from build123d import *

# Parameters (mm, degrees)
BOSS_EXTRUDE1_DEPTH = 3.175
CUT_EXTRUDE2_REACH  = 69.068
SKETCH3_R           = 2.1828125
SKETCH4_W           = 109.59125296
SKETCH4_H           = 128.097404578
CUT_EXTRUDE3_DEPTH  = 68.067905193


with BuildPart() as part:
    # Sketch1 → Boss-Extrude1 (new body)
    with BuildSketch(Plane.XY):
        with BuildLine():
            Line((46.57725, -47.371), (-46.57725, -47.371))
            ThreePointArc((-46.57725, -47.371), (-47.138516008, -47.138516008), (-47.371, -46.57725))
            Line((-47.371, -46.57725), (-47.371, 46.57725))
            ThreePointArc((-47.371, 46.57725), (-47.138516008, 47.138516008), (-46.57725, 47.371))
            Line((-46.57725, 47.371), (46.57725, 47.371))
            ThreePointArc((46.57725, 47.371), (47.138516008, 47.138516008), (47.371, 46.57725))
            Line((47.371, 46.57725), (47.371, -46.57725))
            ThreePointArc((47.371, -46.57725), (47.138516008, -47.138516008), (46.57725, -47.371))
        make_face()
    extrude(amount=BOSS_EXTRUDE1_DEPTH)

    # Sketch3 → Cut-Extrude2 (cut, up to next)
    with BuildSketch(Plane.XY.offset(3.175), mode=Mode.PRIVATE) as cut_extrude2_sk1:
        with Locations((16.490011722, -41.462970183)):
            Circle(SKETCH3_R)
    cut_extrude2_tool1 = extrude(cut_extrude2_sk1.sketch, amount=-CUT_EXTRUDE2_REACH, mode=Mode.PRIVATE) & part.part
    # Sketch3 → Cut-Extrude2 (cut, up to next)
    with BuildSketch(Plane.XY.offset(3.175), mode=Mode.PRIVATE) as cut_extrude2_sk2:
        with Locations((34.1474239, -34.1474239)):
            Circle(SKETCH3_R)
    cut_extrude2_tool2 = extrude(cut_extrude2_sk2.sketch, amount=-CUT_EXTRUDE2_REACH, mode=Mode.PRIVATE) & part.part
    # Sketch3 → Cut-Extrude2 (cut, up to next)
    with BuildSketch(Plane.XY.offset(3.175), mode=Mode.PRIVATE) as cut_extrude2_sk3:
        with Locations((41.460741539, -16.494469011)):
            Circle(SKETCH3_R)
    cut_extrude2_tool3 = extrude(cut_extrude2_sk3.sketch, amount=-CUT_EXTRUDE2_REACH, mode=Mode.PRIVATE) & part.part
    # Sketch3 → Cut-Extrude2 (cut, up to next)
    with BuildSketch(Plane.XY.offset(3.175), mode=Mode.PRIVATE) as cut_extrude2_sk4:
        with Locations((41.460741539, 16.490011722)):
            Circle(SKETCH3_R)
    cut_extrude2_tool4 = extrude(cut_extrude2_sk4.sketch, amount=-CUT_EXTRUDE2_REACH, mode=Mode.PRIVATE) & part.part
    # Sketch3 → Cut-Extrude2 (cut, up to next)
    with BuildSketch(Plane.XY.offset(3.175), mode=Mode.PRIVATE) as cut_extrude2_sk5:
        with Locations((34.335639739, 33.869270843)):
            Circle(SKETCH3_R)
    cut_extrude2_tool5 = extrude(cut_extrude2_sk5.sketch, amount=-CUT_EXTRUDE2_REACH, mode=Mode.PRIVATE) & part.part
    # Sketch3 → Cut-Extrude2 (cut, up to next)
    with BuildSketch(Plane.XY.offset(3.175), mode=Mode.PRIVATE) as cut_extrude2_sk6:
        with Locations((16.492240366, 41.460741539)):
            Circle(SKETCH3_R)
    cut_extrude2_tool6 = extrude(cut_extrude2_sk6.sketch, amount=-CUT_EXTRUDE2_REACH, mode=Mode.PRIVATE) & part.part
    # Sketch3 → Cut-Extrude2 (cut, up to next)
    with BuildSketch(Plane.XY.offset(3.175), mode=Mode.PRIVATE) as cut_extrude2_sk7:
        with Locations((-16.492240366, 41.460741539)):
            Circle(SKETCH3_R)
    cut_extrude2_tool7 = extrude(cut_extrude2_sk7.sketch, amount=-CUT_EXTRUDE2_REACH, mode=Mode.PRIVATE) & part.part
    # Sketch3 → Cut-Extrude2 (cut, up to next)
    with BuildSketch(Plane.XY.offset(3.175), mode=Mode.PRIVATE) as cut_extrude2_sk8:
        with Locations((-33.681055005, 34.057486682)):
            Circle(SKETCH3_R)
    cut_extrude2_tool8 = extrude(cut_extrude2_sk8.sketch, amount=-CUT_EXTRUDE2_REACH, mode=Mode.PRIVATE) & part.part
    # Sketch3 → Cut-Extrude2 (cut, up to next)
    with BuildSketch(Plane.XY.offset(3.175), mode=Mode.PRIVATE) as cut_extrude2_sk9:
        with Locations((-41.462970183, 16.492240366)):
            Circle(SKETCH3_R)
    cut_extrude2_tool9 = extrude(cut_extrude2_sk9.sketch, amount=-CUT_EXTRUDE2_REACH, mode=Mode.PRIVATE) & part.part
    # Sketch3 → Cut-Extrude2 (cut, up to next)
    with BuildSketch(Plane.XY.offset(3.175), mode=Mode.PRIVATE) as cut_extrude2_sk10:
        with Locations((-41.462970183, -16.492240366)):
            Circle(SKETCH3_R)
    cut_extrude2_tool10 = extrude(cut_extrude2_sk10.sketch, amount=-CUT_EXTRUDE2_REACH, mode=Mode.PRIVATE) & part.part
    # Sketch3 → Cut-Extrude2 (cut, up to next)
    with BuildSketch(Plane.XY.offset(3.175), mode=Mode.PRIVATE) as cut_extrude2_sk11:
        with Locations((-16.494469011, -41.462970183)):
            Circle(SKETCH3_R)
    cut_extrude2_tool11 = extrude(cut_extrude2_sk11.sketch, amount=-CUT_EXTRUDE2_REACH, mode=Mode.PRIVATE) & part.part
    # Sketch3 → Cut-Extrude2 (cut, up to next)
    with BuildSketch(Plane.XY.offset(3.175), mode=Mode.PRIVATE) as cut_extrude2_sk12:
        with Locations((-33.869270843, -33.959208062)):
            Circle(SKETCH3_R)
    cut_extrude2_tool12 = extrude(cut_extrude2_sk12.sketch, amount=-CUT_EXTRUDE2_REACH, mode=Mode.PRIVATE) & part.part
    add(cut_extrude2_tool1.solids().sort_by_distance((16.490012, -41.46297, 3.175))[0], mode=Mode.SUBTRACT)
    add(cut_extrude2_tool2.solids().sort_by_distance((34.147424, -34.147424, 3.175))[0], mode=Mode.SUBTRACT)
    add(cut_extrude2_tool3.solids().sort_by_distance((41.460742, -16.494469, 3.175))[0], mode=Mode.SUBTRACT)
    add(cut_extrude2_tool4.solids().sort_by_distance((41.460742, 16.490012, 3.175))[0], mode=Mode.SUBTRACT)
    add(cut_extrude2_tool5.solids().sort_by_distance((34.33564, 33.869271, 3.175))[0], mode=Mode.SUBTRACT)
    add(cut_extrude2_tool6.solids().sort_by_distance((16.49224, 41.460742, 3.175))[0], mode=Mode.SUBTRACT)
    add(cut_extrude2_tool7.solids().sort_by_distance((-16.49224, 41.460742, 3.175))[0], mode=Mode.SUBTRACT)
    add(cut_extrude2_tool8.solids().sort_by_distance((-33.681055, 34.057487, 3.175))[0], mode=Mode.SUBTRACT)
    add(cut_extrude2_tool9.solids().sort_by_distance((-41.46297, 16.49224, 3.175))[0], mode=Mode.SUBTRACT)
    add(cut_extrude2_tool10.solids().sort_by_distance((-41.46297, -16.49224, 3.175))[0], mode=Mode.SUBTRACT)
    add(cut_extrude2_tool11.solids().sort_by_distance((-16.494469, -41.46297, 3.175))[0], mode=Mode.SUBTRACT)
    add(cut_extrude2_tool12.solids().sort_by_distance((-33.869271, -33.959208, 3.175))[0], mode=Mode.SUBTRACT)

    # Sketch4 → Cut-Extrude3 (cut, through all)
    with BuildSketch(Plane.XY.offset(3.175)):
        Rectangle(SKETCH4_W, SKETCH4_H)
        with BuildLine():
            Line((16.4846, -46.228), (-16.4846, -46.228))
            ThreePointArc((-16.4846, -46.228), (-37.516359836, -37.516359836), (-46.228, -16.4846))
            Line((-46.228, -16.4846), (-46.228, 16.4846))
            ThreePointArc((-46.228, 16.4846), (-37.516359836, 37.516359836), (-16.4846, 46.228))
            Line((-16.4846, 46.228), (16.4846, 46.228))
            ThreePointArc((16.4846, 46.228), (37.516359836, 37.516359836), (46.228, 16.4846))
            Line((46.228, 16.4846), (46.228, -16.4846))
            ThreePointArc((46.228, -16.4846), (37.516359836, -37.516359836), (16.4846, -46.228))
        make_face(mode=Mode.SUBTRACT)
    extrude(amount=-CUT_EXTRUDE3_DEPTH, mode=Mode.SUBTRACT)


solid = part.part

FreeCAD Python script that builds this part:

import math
import FreeCAD as App
import Part
import Sketcher

V = App.Vector
Q = App.Units.Quantity

doc = App.newDocument("Part")
params = doc.addObject("Spreadsheet::Sheet", "Params")
for row, (alias, value) in enumerate([
    ("sketch1_radius", "0.03125 in"),
    ("pad1_length", "0.125 in"),
    ("sketch2_diameter", "0.171875 in"),
    ("sketch3_diameter", "0.171875 in"),
    ("sketch4_diameter", "0.171875 in"),
    ("sketch5_diameter", "0.171875 in"),
    ("sketch6_diameter", "0.171875 in"),
    ("sketch7_diameter", "0.171875 in"),
    ("sketch8_diameter", "0.171875 in"),
    ("sketch9_diameter", "0.171875 in"),
    ("sketch10_diameter", "0.171875 in"),
    ("sketch11_diameter", "0.171875 in"),
    ("sketch12_diameter", "0.171875 in"),
    ("sketch13_diameter", "0.171875 in"),
    ("sketch14_radius", "1.171 in"),
    ("sketch14_width", "1.298 in"),
], start=1):
    params.set(f"A{row}", alias)
    params.set(f"B{row}", "=" + value)
    params.setAlias(f"B{row}", alias)

body = doc.addObject("PartDesign::Body", "Body")

sketch1 = body.newObject("Sketcher::SketchObject", "Sketch")
sketch1.AttachmentSupport = (doc.getObject("XY_Plane"), [""])
sketch1.MapMode = "FlatFace"
sketch1.addGeometry(Part.LineSegment(V(-46.6, -47.4, 0), V(46.6, -47.4, 0)), False)
sketch1.addGeometry(Part.ArcOfCircle(Part.Circle(V(46.6, -46.6, 0), V(0, 0, 1), 0.8), math.radians(-90), math.radians(0)), False)
sketch1.addGeometry(Part.LineSegment(V(47.4, -46.6, 0), V(47.4, 46.6, 0)), False)
sketch1.addGeometry(Part.ArcOfCircle(Part.Circle(V(46.6, 46.6, 0), V(0, 0, 1), 0.8), math.radians(0), math.radians(90)), False)
sketch1.addGeometry(Part.LineSegment(V(46.6, 47.4, 0), V(-46.6, 47.4, 0)), False)
sketch1.addGeometry(Part.ArcOfCircle(Part.Circle(V(-46.6, 46.6, 0), V(0, 0, 1), 0.8), math.radians(90), math.radians(180)), False)
sketch1.addGeometry(Part.LineSegment(V(-47.4, 46.6, 0), V(-47.4, -46.6, 0)), False)
sketch1.addGeometry(Part.ArcOfCircle(Part.Circle(V(-46.6, -46.6, 0), V(0, 0, 1), 0.8), math.radians(180), math.radians(270)), False)
sketch1.addConstraint(Sketcher.Constraint("Tangent", 0, 2, 1, 1))
sketch1.addConstraint(Sketcher.Constraint("Tangent", 1, 2, 2, 1))
sketch1.addConstraint(Sketcher.Constraint("Tangent", 2, 2, 3, 1))
sketch1.addConstraint(Sketcher.Constraint("Tangent", 3, 2, 4, 1))
sketch1.addConstraint(Sketcher.Constraint("Tangent", 4, 2, 5, 1))
sketch1.addConstraint(Sketcher.Constraint("Tangent", 5, 2, 6, 1))
sketch1.addConstraint(Sketcher.Constraint("Tangent", 6, 2, 7, 1))
sketch1.addConstraint(Sketcher.Constraint("Tangent", 7, 2, 0, 1))
sketch1.addConstraint(Sketcher.Constraint("Horizontal", 0))
sketch1.addConstraint(Sketcher.Constraint("Vertical", 2))
sketch1.addConstraint(Sketcher.Constraint("Horizontal", 4))
sketch1.addConstraint(Sketcher.Constraint("Vertical", 6))
sketch1.addConstraint(Sketcher.Constraint("Equal", 1, 3))
sketch1.addConstraint(Sketcher.Constraint("Equal", 3, 5))
sketch1.addConstraint(Sketcher.Constraint("Equal", 5, 7))
sketch1.addConstraint(Sketcher.Constraint("Symmetric", 1, 3, 5, 3, -1, 1))
sketch1.addConstraint(Sketcher.Constraint("Equal", 4, 2))
sketch1.addConstraint(Sketcher.Constraint("Radius", 1, Q("0.03125 in")))
sketch1.addConstraint(Sketcher.Constraint("DistanceX", 0, 1, 0, 2, Q("3.6675 in")))
sketch1.setExpression("Constraints[17]", "Params.sketch1_radius")
pad1 = body.newObject("PartDesign::Pad", "Pad")
pad1.Profile = sketch1
pad1.setExpression("Length", "Params.pad1_length")

sketch2 = body.newObject("Sketcher::SketchObject", "Sketch001")
sketch2.AttachmentSupport = (doc.getObject("XY_Plane"), [""])
sketch2.MapMode = "FlatFace"
sketch2.AttachmentOffset = App.Placement(V(0, 0, 0.125 * 25.4), App.Rotation())
sketch2.addGeometry(Part.Circle(V(16.5, -41.5, 0), V(0, 0, 1), 2.2), False)
sketch2.addConstraint(Sketcher.Constraint("Diameter", 0, Q("0.171875 in")))
sketch2.addConstraint(Sketcher.Constraint("DistanceX", -1, 1, 0, 3, Q("16.490012 mm")))
sketch2.addConstraint(Sketcher.Constraint("DistanceY", 0, 3, -1, 1, Q("41.46297 mm")))
sketch2.setExpression("Constraints[0]", "Params.sketch2_diameter")
pocket1 = body.newObject("PartDesign::Pocket", "Pocket")
pocket1.Profile = sketch2
pocket1.Type = "UpToFirst"

sketch3 = body.newObject("Sketcher::SketchObject", "Sketch002")
sketch3.AttachmentSupport = (doc.getObject("XY_Plane"), [""])
sketch3.MapMode = "FlatFace"
sketch3.AttachmentOffset = App.Placement(V(0, 0, 0.125 * 25.4), App.Rotation())
sketch3.addGeometry(Part.Circle(V(34.1, -34.1, 0), V(0, 0, 1), 2.2), False)
sketch3.addConstraint(Sketcher.Constraint("Diameter", 0, Q("0.171875 in")))
sketch3.addConstraint(Sketcher.Constraint("DistanceX", -1, 1, 0, 3, Q("34.147424 mm")))
sketch3.addConstraint(Sketcher.Constraint("DistanceY", 0, 3, -1, 1, Q("34.147424 mm")))
sketch3.setExpression("Constraints[0]", "Params.sketch3_diameter")
pocket2 = body.newObject("PartDesign::Pocket", "Pocket001")
pocket2.Profile = sketch3
pocket2.Type = "UpToFirst"

sketch4 = body.newObject("Sketcher::SketchObject", "Sketch003")
sketch4.AttachmentSupport = (doc.getObject("XY_Plane"), [""])
sketch4.MapMode = "FlatFace"
sketch4.AttachmentOffset = App.Placement(V(0, 0, 0.125 * 25.4), App.Rotation())
sketch4.addGeometry(Part.Circle(V(41.5, -16.5, 0), V(0, 0, 1), 2.2), False)
sketch4.addConstraint(Sketcher.Constraint("Diameter", 0, Q("0.171875 in")))
sketch4.addConstraint(Sketcher.Constraint("DistanceX", -1, 1, 0, 3, Q("41.460742 mm")))
sketch4.addConstraint(Sketcher.Constraint("DistanceY", 0, 3, -1, 1, Q("16.494469 mm")))
sketch4.setExpression("Constraints[0]", "Params.sketch4_diameter")
pocket3 = body.newObject("PartDesign::Pocket", "Pocket002")
pocket3.Profile = sketch4
pocket3.Type = "UpToFirst"

sketch5 = body.newObject("Sketcher::SketchObject", "Sketch004")
sketch5.AttachmentSupport = (doc.getObject("XY_Plane"), [""])
sketch5.MapMode = "FlatFace"
sketch5.AttachmentOffset = App.Placement(V(0, 0, 0.125 * 25.4), App.Rotation())
sketch5.addGeometry(Part.Circle(V(41.5, 16.5, 0), V(0, 0, 1), 2.2), False)
sketch5.addConstraint(Sketcher.Constraint("Diameter", 0, Q("0.171875 in")))
sketch5.addConstraint(Sketcher.Constraint("DistanceX", -1, 1, 0, 3, Q("41.460742 mm")))
sketch5.addConstraint(Sketcher.Constraint("DistanceY", -1, 1, 0, 3, Q("16.490012 mm")))
sketch5.setExpression("Constraints[0]", "Params.sketch5_diameter")
pocket4 = body.newObject("PartDesign::Pocket", "Pocket003")
pocket4.Profile = sketch5
pocket4.Type = "UpToFirst"

sketch6 = body.newObject("Sketcher::SketchObject", "Sketch005")
sketch6.AttachmentSupport = (doc.getObject("XY_Plane"), [""])
sketch6.MapMode = "FlatFace"
sketch6.AttachmentOffset = App.Placement(V(0, 0, 0.125 * 25.4), App.Rotation())
sketch6.addGeometry(Part.Circle(V(34.3, 33.9, 0), V(0, 0, 1), 2.2), False)
sketch6.addConstraint(Sketcher.Constraint("Diameter", 0, Q("0.171875 in")))
sketch6.addConstraint(Sketcher.Constraint("DistanceX", -1, 1, 0, 3, Q("34.33564 mm")))
sketch6.addConstraint(Sketcher.Constraint("DistanceY", -1, 1, 0, 3, Q("33.869271 mm")))
sketch6.setExpression("Constraints[0]", "Params.sketch6_diameter")
pocket5 = body.newObject("PartDesign::Pocket", "Pocket004")
pocket5.Profile = sketch6
pocket5.Type = "UpToFirst"

sketch7 = body.newObject("Sketcher::SketchObject", "Sketch006")
sketch7.AttachmentSupport = (doc.getObject("XY_Plane"), [""])
sketch7.MapMode = "FlatFace"
sketch7.AttachmentOffset = App.Placement(V(0, 0, 0.125 * 25.4), App.Rotation())
sketch7.addGeometry(Part.Circle(V(16.5, 41.5, 0), V(0, 0, 1), 2.2), False)
sketch7.addConstraint(Sketcher.Constraint("Diameter", 0, Q("0.171875 in")))
sketch7.addConstraint(Sketcher.Constraint("DistanceX", -1, 1, 0, 3, Q("16.49224 mm")))
sketch7.addConstraint(Sketcher.Constraint("DistanceY", -1, 1, 0, 3, Q("41.460742 mm")))
sketch7.setExpression("Constraints[0]", "Params.sketch7_diameter")
pocket6 = body.newObject("PartDesign::Pocket", "Pocket005")
pocket6.Profile = sketch7
pocket6.Type = "UpToFirst"

sketch8 = body.newObject("Sketcher::SketchObject", "Sketch007")
sketch8.AttachmentSupport = (doc.getObject("XY_Plane"), [""])
sketch8.MapMode = "FlatFace"
sketch8.AttachmentOffset = App.Placement(V(0, 0, 0.125 * 25.4), App.Rotation())
sketch8.addGeometry(Part.Circle(V(-16.5, 41.5, 0), V(0, 0, 1), 2.2), False)
sketch8.addConstraint(Sketcher.Constraint("Diameter", 0, Q("0.171875 in")))
sketch8.addConstraint(Sketcher.Constraint("DistanceX", 0, 3, -1, 1, Q("16.49224 mm")))
sketch8.addConstraint(Sketcher.Constraint("DistanceY", -1, 1, 0, 3, Q("41.460742 mm")))
sketch8.setExpression("Constraints[0]", "Params.sketch8_diameter")
pocket7 = body.newObject("PartDesign::Pocket", "Pocket006")
pocket7.Profile = sketch8
pocket7.Type = "UpToFirst"

sketch9 = body.newObject("Sketcher::SketchObject", "Sketch008")
sketch9.AttachmentSupport = (doc.getObject("XY_Plane"), [""])
sketch9.MapMode = "FlatFace"
sketch9.AttachmentOffset = App.Placement(V(0, 0, 0.125 * 25.4), App.Rotation())
sketch9.addGeometry(Part.Circle(V(-33.7, 34.1, 0), V(0, 0, 1), 2.2), False)
sketch9.addConstraint(Sketcher.Constraint("Diameter", 0, Q("0.171875 in")))
sketch9.addConstraint(Sketcher.Constraint("DistanceX", 0, 3, -1, 1, Q("33.681055 mm")))
sketch9.addConstraint(Sketcher.Constraint("DistanceY", -1, 1, 0, 3, Q("34.057487 mm")))
sketch9.setExpression("Constraints[0]", "Params.sketch9_diameter")
pocket8 = body.newObject("PartDesign::Pocket", "Pocket007")
pocket8.Profile = sketch9
pocket8.Type = "UpToFirst"

sketch10 = body.newObject("Sketcher::SketchObject", "Sketch009")
sketch10.AttachmentSupport = (doc.getObject("XY_Plane"), [""])
sketch10.MapMode = "FlatFace"
sketch10.AttachmentOffset = App.Placement(V(0, 0, 0.125 * 25.4), App.Rotation())
sketch10.addGeometry(Part.Circle(V(-41.5, 16.5, 0), V(0, 0, 1), 2.2), False)
sketch10.addConstraint(Sketcher.Constraint("Diameter", 0, Q("0.171875 in")))
sketch10.addConstraint(Sketcher.Constraint("DistanceX", 0, 3, -1, 1, Q("41.46297 mm")))
sketch10.addConstraint(Sketcher.Constraint("DistanceY", -1, 1, 0, 3, Q("16.49224 mm")))
sketch10.setExpression("Constraints[0]", "Params.sketch10_diameter")
pocket9 = body.newObject("PartDesign::Pocket", "Pocket008")
pocket9.Profile = sketch10
pocket9.Type = "UpToFirst"

sketch11 = body.newObject("Sketcher::SketchObject", "Sketch010")
sketch11.AttachmentSupport = (doc.getObject("XY_Plane"), [""])
sketch11.MapMode = "FlatFace"
sketch11.AttachmentOffset = App.Placement(V(0, 0, 0.125 * 25.4), App.Rotation())
sketch11.addGeometry(Part.Circle(V(-41.5, -16.5, 0), V(0, 0, 1), 2.2), False)
sketch11.addConstraint(Sketcher.Constraint("Diameter", 0, Q("0.171875 in")))
sketch11.addConstraint(Sketcher.Constraint("DistanceX", 0, 3, -1, 1, Q("41.46297 mm")))
sketch11.addConstraint(Sketcher.Constraint("DistanceY", 0, 3, -1, 1, Q("16.49224 mm")))
sketch11.setExpression("Constraints[0]", "Params.sketch11_diameter")
pocket10 = body.newObject("PartDesign::Pocket", "Pocket009")
pocket10.Profile = sketch11
pocket10.Type = "UpToFirst"

sketch12 = body.newObject("Sketcher::SketchObject", "Sketch011")
sketch12.AttachmentSupport = (doc.getObject("XY_Plane"), [""])
sketch12.MapMode = "FlatFace"
sketch12.AttachmentOffset = App.Placement(V(0, 0, 0.125 * 25.4), App.Rotation())
sketch12.addGeometry(Part.Circle(V(-16.5, -41.5, 0), V(0, 0, 1), 2.2), False)
sketch12.addConstraint(Sketcher.Constraint("Diameter", 0, Q("0.171875 in")))
sketch12.addConstraint(Sketcher.Constraint("DistanceX", 0, 3, -1, 1, Q("16.494469 mm")))
sketch12.addConstraint(Sketcher.Constraint("DistanceY", 0, 3, -1, 1, Q("41.46297 mm")))
sketch12.setExpression("Constraints[0]", "Params.sketch12_diameter")
pocket11 = body.newObject("PartDesign::Pocket", "Pocket010")
pocket11.Profile = sketch12
pocket11.Type = "UpToFirst"

sketch13 = body.newObject("Sketcher::SketchObject", "Sketch012")
sketch13.AttachmentSupport = (doc.getObject("XY_Plane"), [""])
sketch13.MapMode = "FlatFace"
sketch13.AttachmentOffset = App.Placement(V(0, 0, 0.125 * 25.4), App.Rotation())
sketch13.addGeometry(Part.Circle(V(-33.9, -34, 0), V(0, 0, 1), 2.2), False)
sketch13.addConstraint(Sketcher.Constraint("Diameter", 0, Q("0.171875 in")))
sketch13.addConstraint(Sketcher.Constraint("DistanceX", 0, 3, -1, 1, Q("33.869271 mm")))
sketch13.addConstraint(Sketcher.Constraint("DistanceY", 0, 3, -1, 1, Q("33.959208 mm")))
sketch13.setExpression("Constraints[0]", "Params.sketch13_diameter")
pocket12 = body.newObject("PartDesign::Pocket", "Pocket011")
pocket12.Profile = sketch13
pocket12.Type = "UpToFirst"

sketch14 = body.newObject("Sketcher::SketchObject", "Sketch013")
sketch14.AttachmentSupport = (doc.getObject("XY_Plane"), [""])
sketch14.MapMode = "FlatFace"
sketch14.AttachmentOffset = App.Placement(V(0, 0, 0.125 * 25.4), App.Rotation())
sketch14.addGeometry(Part.LineSegment(V(-55, 64, 0), V(-55, -64, 0)), False)
sketch14.addGeometry(Part.LineSegment(V(-55, -64, 0), V(55, -64, 0)), False)
sketch14.addGeometry(Part.LineSegment(V(55, -64, 0), V(55, 64, 0)), False)
sketch14.addGeometry(Part.LineSegment(V(55, 64, 0), V(-55, 64, 0)), False)
sketch14.addGeometry(Part.ArcOfCircle(Part.Circle(V(16, -16, 0), V(0, 0, 1), 30), math.radians(-90), math.radians(0)), False)
sketch14.addGeometry(Part.LineSegment(V(16, -46, 0), V(-16, -46, 0)), False)
sketch14.addGeometry(Part.ArcOfCircle(Part.Circle(V(-16, -16, 0), V(0, 0, 1), 30), math.radians(180), math.radians(270)), False)
sketch14.addGeometry(Part.LineSegment(V(-46, -16, 0), V(-46, 16, 0)), False)
sketch14.addGeometry(Part.ArcOfCircle(Part.Circle(V(-16, 16, 0), V(0, 0, 1), 30), math.radians(90), math.radians(180)), False)
sketch14.addGeometry(Part.LineSegment(V(-16, 46, 0), V(16, 46, 0)), False)
sketch14.addGeometry(Part.ArcOfCircle(Part.Circle(V(16, 16, 0), V(0, 0, 1), 30), math.radians(0), math.radians(90)), False)
sketch14.addGeometry(Part.LineSegment(V(46, 16, 0), V(46, -16, 0)), False)
sketch14.addConstraint(Sketcher.Constraint("Coincident", 0, 2, 1, 1))
sketch14.addConstraint(Sketcher.Constraint("Coincident", 1, 2, 2, 1))
sketch14.addConstraint(Sketcher.Constraint("Coincident", 2, 2, 3, 1))
sketch14.addConstraint(Sketcher.Constraint("Coincident", 3, 2, 0, 1))
sketch14.addConstraint(Sketcher.Constraint("Tangent", 4, 1, 5, 1))
sketch14.addConstraint(Sketcher.Constraint("Tangent", 5, 2, 6, 2))
sketch14.addConstraint(Sketcher.Constraint("Tangent", 6, 1, 7, 1))
sketch14.addConstraint(Sketcher.Constraint("Tangent", 7, 2, 8, 2))
sketch14.addConstraint(Sketcher.Constraint("Tangent", 8, 1, 9, 1))
sketch14.addConstraint(Sketcher.Constraint("Tangent", 9, 2, 10, 2))
sketch14.addConstraint(Sketcher.Constraint("Tangent", 10, 1, 11, 1))
sketch14.addConstraint(Sketcher.Constraint("Tangent", 11, 2, 4, 2))
sketch14.addConstraint(Sketcher.Constraint("Vertical", 0))
sketch14.addConstraint(Sketcher.Constraint("Horizontal", 1))
sketch14.addConstraint(Sketcher.Constraint("Vertical", 2))
sketch14.addConstraint(Sketcher.Constraint("Horizontal", 3))
sketch14.addConstraint(Sketcher.Constraint("Horizontal", 5))
sketch14.addConstraint(Sketcher.Constraint("Vertical", 7))
sketch14.addConstraint(Sketcher.Constraint("Horizontal", 9))
sketch14.addConstraint(Sketcher.Constraint("Vertical", 11))
sketch14.addConstraint(Sketcher.Constraint("Equal", 4, 6))
sketch14.addConstraint(Sketcher.Constraint("Equal", 6, 8))
sketch14.addConstraint(Sketcher.Constraint("Equal", 8, 10))
sketch14.addConstraint(Sketcher.Constraint("Symmetric", 4, 3, 8, 3, -1, 1))
sketch14.addConstraint(Sketcher.Constraint("Symmetric", 0, 2, 2, 2, -1, 1))
sketch14.addConstraint(Sketcher.Constraint("Equal", 9, 7))
sketch14.addConstraint(Sketcher.Constraint("Radius", 4, Q("1.171 in")))
sketch14.addConstraint(Sketcher.Constraint("DistanceX", 5, 2, 5, 1, Q("1.298 in")))
sketch14.addConstraint(Sketcher.Constraint("DistanceX", 1, 1, 1, 2, Q("109.591253 mm")))
sketch14.addConstraint(Sketcher.Constraint("DistanceY", 0, 2, 0, 1, Q("128.097405 mm")))
sketch14.setExpression("Constraints[26]", "Params.sketch14_radius")
sketch14.setExpression("Constraints[27]", "Params.sketch14_width")
pocket13 = body.newObject("PartDesign::Pocket", "Pocket012")
pocket13.Profile = sketch14
pocket13.Type = "ThroughAll"

doc.recompute()
